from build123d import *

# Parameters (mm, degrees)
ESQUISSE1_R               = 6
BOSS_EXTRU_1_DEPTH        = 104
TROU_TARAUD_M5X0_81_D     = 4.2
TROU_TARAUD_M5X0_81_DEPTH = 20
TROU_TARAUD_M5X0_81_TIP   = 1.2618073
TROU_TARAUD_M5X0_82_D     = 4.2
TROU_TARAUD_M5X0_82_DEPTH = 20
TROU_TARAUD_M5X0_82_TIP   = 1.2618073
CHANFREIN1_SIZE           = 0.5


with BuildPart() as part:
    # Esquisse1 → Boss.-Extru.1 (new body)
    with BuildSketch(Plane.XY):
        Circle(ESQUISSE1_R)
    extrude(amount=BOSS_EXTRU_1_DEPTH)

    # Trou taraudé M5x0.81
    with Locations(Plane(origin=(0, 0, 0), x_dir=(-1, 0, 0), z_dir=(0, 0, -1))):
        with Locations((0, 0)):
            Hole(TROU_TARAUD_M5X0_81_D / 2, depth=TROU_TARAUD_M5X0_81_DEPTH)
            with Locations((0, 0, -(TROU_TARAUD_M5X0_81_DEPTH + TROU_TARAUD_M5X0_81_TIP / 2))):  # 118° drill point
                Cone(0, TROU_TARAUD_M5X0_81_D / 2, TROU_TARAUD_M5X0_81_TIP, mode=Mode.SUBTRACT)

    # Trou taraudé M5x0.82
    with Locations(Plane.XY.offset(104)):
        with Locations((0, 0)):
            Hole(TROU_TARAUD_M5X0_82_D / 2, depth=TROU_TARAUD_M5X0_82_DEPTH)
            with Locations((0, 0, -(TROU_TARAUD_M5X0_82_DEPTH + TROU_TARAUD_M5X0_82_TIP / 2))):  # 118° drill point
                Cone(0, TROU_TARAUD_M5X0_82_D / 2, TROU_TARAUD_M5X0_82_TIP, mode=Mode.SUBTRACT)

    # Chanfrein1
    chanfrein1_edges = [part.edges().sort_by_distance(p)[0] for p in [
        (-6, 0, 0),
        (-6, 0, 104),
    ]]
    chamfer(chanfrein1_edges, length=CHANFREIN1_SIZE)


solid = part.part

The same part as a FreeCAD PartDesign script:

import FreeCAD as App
import Part
import Sketcher
Q = App.Units.Quantity


def edges_at(feature, points):
    """Names of the edges that pass closest to the given points."""
    edges = feature.Shape.Edges
    near = lambda p: min(range(len(edges)), key=lambda i: edges[i].distToShape(Part.Vertex(*p))[0])
    return sorted({f"Edge{near(p) + 1}" for p in points})

doc = App.newDocument("Part")
params = doc.addObject("Spreadsheet::Sheet", "Params")
for row, (alias, value) in enumerate([
    ("sketch1_diameter", "12 mm"),
    ("pad1_length", "104 mm"),
    ("sketch2_diameter", "4.2 mm"),
    ("hole_diameter", "4.2 mm"),
    ("hole_depth", "20 mm"),
    ("sketch3_diameter", "4.2 mm"),
    ("hole2_diameter", "4.2 mm"),
    ("hole2_depth", "20 mm"),
    ("chamfer_size", "0.5 mm"),
], start=1):
    params.set(f"A{row}", alias)
    params.set(f"B{row}", "=" + value)
    params.setAlias(f"B{row}", alias)

body = doc.addObject("PartDesign::Body", "Body")

# Sketch on XY plane
sketch1 = doc.addObject("Sketcher::SketchObject", "Sketch")
body.addObject(sketch1)
sketch1.AttachmentSupport = (doc.XY_Plane, [""])
sketch1.MapMode = "FlatFace"
sketch1.addGeometry(Part.Circle(App.Vector(0, 0, 0), App.Vector(0, 0, 1), 6), False)
sketch1.addConstraint(Sketcher.Constraint("Coincident", 0, 3, -1, 1))
sketch1.addConstraint(Sketcher.Constraint("Diameter", 0, Q("12 mm")))
sketch1.setExpression("Constraints[1]", "Params.sketch1_diameter")
pad1 = doc.addObject("PartDesign::Pad", "Pad")
body.addObject(pad1)
pad1.Profile = sketch1
pad1.setExpression("Length", "Params.pad1_length")

# Sketch on XY plane
sketch2 = doc.addObject("Sketcher::SketchObject", "Sketch001")
body.addObject(sketch2)
sketch2.AttachmentSupport = (doc.XY_Plane, [""])
sketch2.MapMode = "FlatFace"
sketch2.addGeometry(Part.Circle(App.Vector(0, 0, 0), App.Vector(0, 0, 1), 2.1), False)
sketch2.addConstraint(Sketcher.Constraint("Coincident", 0, 3, -1, 1))
sketch2.addConstraint(Sketcher.Constraint("Diameter", 0, Q("4.2 mm")))
sketch2.setExpression("Constraints[1]", "Params.sketch2_diameter")
doc.recompute()
hole = doc.addObject("PartDesign::Hole", "Hole")
body.addObject(hole)
hole.Profile = sketch2
hole.ThreadType = "None"
hole.setExpression("Diameter", "Params.hole_diameter")
hole.DepthType = "Dimension"
hole.setExpression("Depth", "Params.hole_depth")
hole.DrillPoint = "Angled"
hole.DrillPointAngle = 118
hole.Reversed = True

# Sketch on XY plane
sketch3 = doc.addObject("Sketcher::SketchObject", "Sketch002")
body.addObject(sketch3)
sketch3.AttachmentSupport = (doc.XY_Plane, [""])
sketch3.MapMode = "FlatFace"
sketch3.AttachmentOffset = App.Placement(App.Vector(0, 0, 104), App.Rotation())
sketch3.addGeometry(Part.Circle(App.Vector(0, 0, 0), App.Vector(0, 0, 1), 2.1), False)
sketch3.addConstraint(Sketcher.Constraint("Coincident", 0, 3, -1, 1))
sketch3.addConstraint(Sketcher.Constraint("Diameter", 0, Q("4.2 mm")))
sketch3.setExpression("Constraints[1]", "Params.sketch3_diameter")
doc.recompute()
hole2 = doc.addObject("PartDesign::Hole", "Hole001")
body.addObject(hole2)
hole2.Profile = sketch3
hole2.ThreadType = "None"
hole2.setExpression("Diameter", "Params.hole2_diameter")
hole2.DepthType = "Dimension"
hole2.setExpression("Depth", "Params.hole2_depth")
hole2.DrillPoint = "Angled"
hole2.DrillPointAngle = 118
doc.recompute()

chamfer = doc.addObject("PartDesign::Chamfer", "Chamfer")
body.addObject(chamfer)
chamfer.Base = (hole2, edges_at(hole2, [(-6, 0, 0), (-6, 0, 104)]))
chamfer.setExpression("Size", "Params.chamfer_size")

doc.recompute()
